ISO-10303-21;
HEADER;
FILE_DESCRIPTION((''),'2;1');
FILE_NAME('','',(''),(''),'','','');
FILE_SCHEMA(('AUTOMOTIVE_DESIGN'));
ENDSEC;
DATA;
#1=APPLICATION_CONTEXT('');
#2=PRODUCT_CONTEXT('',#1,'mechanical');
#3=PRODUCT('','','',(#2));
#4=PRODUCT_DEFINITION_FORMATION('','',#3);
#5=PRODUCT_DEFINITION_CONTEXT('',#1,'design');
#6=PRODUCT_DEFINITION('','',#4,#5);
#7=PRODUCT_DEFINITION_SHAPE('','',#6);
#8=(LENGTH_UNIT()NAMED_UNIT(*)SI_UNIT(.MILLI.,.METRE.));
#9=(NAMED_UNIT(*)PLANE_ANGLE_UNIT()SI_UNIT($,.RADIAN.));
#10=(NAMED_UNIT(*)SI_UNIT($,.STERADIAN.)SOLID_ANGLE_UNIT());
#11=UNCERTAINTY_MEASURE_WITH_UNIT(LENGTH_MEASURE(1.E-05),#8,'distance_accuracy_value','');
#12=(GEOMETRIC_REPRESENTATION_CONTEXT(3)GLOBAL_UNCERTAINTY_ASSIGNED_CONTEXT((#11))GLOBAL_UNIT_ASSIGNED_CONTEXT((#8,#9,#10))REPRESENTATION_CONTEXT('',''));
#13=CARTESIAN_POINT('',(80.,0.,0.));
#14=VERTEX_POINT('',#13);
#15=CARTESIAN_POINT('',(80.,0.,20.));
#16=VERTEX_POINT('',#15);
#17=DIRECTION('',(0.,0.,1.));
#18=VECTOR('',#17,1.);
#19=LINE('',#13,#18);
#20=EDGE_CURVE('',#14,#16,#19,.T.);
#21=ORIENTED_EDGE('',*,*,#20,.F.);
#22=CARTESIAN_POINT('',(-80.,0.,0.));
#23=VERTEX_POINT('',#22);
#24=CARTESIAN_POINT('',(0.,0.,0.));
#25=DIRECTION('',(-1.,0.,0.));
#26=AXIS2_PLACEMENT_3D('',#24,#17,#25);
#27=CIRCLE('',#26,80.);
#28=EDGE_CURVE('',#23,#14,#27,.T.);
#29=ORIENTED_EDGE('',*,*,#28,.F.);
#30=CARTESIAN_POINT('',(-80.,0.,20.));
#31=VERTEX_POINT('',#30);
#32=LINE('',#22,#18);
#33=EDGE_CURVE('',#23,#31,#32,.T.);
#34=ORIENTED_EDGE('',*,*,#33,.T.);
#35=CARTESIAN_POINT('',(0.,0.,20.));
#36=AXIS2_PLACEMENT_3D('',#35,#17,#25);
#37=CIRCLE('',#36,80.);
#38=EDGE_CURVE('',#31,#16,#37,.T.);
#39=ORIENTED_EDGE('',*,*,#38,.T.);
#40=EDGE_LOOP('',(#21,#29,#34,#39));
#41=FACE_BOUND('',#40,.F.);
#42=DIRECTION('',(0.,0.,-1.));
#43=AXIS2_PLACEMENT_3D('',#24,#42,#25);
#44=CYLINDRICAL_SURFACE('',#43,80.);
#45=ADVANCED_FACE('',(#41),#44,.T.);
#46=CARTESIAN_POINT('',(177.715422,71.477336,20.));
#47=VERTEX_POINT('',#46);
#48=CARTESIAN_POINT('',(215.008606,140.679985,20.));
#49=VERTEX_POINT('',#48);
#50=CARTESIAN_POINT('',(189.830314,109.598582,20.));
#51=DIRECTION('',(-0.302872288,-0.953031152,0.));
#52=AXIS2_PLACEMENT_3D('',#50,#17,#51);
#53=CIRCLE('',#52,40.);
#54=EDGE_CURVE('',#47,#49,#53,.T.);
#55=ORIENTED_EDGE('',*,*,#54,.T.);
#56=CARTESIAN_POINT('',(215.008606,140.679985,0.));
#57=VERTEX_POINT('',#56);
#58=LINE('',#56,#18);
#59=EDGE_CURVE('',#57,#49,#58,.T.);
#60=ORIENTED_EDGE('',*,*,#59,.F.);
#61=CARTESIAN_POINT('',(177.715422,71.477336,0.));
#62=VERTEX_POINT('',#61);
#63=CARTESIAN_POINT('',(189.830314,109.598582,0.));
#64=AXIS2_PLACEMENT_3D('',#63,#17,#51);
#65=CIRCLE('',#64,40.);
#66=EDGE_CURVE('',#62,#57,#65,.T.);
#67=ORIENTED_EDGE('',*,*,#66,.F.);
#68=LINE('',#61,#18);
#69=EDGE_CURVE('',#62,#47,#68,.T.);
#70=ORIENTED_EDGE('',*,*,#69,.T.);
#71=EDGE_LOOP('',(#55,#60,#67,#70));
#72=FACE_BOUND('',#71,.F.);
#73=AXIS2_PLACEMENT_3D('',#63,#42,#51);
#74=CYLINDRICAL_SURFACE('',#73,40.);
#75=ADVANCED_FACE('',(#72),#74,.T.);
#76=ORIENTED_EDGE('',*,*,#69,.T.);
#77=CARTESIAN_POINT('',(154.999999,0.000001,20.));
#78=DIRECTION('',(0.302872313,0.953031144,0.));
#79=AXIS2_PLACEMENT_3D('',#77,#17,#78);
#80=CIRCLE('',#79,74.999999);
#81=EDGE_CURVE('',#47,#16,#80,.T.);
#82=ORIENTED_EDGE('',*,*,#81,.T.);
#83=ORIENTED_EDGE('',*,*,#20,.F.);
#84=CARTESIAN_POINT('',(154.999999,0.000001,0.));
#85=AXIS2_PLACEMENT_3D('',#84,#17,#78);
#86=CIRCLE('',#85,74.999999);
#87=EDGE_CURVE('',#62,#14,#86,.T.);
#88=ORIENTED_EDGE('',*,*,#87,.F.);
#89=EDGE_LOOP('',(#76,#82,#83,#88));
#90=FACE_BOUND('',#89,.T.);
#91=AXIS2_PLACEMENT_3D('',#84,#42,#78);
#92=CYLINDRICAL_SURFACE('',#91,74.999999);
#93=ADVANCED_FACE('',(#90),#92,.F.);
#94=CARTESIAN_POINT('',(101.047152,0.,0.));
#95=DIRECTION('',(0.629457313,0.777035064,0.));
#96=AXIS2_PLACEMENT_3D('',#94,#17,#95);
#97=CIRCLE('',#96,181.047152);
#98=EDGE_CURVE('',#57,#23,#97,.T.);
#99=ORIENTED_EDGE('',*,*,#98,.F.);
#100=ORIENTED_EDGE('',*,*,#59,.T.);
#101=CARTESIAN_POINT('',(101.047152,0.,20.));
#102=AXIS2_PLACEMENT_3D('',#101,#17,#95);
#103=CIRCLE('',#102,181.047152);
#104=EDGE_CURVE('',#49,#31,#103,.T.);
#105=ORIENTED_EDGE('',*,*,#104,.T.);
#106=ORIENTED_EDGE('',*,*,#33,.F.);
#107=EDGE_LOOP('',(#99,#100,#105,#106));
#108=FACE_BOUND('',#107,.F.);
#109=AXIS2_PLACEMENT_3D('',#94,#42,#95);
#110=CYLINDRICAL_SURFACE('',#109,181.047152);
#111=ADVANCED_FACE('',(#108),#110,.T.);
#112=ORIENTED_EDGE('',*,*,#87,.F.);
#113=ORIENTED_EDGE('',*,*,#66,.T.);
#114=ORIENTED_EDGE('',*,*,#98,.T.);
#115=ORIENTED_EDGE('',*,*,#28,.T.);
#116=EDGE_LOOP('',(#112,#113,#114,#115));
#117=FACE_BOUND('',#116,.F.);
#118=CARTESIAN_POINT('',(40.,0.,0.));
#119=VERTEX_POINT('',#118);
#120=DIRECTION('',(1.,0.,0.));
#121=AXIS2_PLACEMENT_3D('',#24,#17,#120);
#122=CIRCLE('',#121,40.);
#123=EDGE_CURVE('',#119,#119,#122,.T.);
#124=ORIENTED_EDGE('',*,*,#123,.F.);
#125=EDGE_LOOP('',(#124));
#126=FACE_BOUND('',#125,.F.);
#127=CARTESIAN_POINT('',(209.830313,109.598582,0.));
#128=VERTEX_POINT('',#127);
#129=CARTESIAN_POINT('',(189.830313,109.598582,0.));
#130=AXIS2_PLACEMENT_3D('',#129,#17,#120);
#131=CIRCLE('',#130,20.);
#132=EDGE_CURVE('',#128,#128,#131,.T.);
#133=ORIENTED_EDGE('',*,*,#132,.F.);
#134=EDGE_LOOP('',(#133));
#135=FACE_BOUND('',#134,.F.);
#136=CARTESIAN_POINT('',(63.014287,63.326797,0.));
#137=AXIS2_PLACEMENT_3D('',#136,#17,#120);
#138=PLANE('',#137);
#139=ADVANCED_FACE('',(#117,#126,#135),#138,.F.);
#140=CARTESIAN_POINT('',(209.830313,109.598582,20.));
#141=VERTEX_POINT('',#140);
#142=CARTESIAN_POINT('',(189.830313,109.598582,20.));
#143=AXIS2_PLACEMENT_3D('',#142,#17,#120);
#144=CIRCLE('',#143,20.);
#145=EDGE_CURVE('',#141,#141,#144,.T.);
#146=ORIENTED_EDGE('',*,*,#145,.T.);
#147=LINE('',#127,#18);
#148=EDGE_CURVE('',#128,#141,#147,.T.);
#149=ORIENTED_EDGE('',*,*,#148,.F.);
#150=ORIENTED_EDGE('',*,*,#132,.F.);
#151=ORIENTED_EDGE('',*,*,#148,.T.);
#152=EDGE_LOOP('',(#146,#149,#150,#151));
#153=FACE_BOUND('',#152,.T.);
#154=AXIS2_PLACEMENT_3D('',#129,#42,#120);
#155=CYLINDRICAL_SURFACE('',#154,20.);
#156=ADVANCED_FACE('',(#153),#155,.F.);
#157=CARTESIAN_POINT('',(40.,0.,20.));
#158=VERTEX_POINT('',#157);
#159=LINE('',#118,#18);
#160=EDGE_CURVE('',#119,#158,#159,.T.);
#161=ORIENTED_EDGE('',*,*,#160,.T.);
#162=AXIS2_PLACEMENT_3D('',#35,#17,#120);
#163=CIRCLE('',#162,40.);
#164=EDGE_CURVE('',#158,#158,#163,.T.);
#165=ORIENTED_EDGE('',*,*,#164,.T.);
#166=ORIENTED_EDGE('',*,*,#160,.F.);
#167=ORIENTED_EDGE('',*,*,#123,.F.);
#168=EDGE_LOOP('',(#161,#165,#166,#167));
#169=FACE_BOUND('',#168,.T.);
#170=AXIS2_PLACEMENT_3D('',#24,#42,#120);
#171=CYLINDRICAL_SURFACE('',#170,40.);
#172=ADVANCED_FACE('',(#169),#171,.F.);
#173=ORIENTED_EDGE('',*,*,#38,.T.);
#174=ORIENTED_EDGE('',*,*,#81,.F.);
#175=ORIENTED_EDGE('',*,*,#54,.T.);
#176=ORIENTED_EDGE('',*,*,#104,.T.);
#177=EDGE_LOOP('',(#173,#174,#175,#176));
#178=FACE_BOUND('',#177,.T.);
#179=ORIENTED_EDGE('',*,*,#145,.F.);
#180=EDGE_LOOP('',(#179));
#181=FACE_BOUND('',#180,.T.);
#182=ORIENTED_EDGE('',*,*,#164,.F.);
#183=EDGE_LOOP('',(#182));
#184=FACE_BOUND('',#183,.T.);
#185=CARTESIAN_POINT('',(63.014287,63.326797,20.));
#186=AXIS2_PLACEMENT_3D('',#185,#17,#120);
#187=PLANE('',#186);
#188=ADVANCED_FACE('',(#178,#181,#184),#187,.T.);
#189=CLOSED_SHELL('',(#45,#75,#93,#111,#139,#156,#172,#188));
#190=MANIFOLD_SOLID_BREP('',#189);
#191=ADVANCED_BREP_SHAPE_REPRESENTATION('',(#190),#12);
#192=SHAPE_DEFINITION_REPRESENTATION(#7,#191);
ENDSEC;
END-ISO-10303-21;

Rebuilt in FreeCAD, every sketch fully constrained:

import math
import FreeCAD as App
import Part
import Sketcher

V = App.Vector

doc = App.newDocument("Part")
body = doc.addObject("PartDesign::Body", "Body")

# Sketch on XY plane
sketch1 = body.newObject("Sketcher::SketchObject", "Sketch")
sketch1.AttachmentSupport = (doc.getObject("XY_Plane"), [""])
sketch1.MapMode = "FlatFace"
sketch1.addGeometry(Part.ArcOfCircle(Part.Circle(V(0, 0, 0), V(0, 0, 1), 80), math.radians(180), math.radians(360)), False)
sketch1.addGeometry(Part.ArcOfCircle(Part.Circle(V(155, 0, 0), V(0, 0, 1), 75), math.radians(72), math.radians(180)), False)
sketch1.addGeometry(Part.ArcOfCircle(Part.Circle(V(190, 110, 0), V(0, 0, 1), 40), math.radians(-108), math.radians(51)), False)
sketch1.addGeometry(Part.ArcOfCircle(Part.Circle(V(101, 0, 0), V(0, 0, 1), 181), math.radians(51), math.radians(180)), False)
sketch1.addGeometry(Part.Circle(V(0, 0, 0), V(0, 0, 1), 40), False)
sketch1.addGeometry(Part.Circle(V(190, 110, 0), V(0, 0, 1), 20), False)
sketch1.addConstraint(Sketcher.Constraint("Tangent", 0, 2, 1, 2))
sketch1.addConstraint(Sketcher.Constraint("Tangent", 1, 1, 2, 1))
sketch1.addConstraint(Sketcher.Constraint("Tangent", 2, 2, 3, 1))
sketch1.addConstraint(Sketcher.Constraint("Tangent", 3, 2, 0, 1))
sketch1.addConstraint(Sketcher.Constraint("Coincident", 0, 3, -1, 1))
sketch1.addConstraint(Sketcher.Constraint("Coincident", 4, 3, -1, 1))
sketch1.addConstraint(Sketcher.Constraint("Coincident", 5, 3, 2, 3))
sketch1.addConstraint(Sketcher.Constraint("Equal", 2, 4))
sketch1.addConstraint(Sketcher.Constraint("PointOnObject", 1, 3, -1))
sketch1.addConstraint(Sketcher.Constraint("PointOnObject", 3, 3, -1))
sketch1.addConstraint(Sketcher.Constraint("Diameter", 4, 80.0))
sketch1.addConstraint(Sketcher.Constraint("Diameter", 5, 40.0))
sketch1.addConstraint(Sketcher.Constraint("Radius", 0, 80.0))
sketch1.addConstraint(Sketcher.Constraint("Radius", 1, 74.999999))
sketch1.addConstraint(Sketcher.Constraint("Radius", 3, 181.047152))
pad1 = body.newObject("PartDesign::Pad", "Pad")
pad1.Profile = sketch1
pad1.Length = 20

doc.recompute()
